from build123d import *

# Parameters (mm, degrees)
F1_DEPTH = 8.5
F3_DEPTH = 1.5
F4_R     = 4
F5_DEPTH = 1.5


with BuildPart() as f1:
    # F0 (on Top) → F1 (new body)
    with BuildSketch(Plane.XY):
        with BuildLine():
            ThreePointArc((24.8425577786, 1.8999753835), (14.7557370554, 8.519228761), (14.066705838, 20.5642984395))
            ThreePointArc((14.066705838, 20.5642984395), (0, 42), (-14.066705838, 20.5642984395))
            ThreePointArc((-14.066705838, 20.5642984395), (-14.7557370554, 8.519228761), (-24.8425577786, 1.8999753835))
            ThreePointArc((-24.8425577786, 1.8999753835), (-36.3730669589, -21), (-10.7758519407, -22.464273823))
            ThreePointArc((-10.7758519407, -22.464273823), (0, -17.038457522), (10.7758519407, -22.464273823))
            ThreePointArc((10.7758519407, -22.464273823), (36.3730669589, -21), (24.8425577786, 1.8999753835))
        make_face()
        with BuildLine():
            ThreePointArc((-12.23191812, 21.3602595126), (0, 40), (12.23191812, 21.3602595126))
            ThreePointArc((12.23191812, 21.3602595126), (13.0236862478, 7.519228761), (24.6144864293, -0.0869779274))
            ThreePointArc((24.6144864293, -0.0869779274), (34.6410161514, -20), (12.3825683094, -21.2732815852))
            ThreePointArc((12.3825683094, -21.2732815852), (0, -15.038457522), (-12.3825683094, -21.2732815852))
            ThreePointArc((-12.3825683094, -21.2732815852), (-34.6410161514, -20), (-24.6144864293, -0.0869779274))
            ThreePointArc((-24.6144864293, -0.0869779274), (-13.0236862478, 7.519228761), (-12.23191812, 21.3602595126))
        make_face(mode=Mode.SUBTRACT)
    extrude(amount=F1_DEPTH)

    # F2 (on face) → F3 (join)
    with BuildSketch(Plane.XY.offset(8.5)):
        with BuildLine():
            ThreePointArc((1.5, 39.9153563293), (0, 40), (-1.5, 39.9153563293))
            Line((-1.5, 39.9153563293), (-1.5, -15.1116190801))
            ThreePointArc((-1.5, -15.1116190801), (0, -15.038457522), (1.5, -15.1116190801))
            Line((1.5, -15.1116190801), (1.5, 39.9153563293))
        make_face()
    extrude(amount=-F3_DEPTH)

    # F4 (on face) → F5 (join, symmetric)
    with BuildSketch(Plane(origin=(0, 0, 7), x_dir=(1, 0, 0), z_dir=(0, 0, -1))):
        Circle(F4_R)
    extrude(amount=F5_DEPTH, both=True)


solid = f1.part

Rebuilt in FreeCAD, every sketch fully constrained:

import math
import FreeCAD as App
import Part
import Sketcher
from FreeCAD import Vector

doc = App.newDocument("Part")
body = doc.addObject("PartDesign::Body", "Body")

sketch1 = body.newObject("Sketcher::SketchObject", "Sketch")
sketch1.AttachmentSupport = (doc.getObject("XY_Plane"), [""])
sketch1.MapMode = "FlatFace"
sketch1.addGeometry([
    Part.ArcOfCircle(Part.Circle(Vector(26.372176, 15.225983, 0), Vector(0, 0, 1), 13.413509), math.radians(156.548007), math.radians(263.451993)),
    Part.ArcOfCircle(Part.Circle(Vector(0, 26.666667, 0), Vector(0, 0, 1), 15.333333), math.radians(-23.451993), math.radians(203.451993)),
    Part.ArcOfCircle(Part.Circle(Vector(-26.372176, 15.225983, 0), Vector(0, 0, 1), 13.413509), math.radians(-83.451993), math.radians(23.451993)),
    Part.ArcOfCircle(Part.Circle(Vector(-23.094011, -13.333333, 0), Vector(0, 0, 1), 15.333333), math.radians(96.548007), math.radians(323.451993)),
    Part.ArcOfCircle(Part.Circle(Vector(0, -30.451966, 0), Vector(0, 0, 1), 13.413509), math.radians(36.548007), math.radians(143.451993)),
    Part.ArcOfCircle(Part.Circle(Vector(23.094011, -13.333333, 0), Vector(0, 0, 1), 15.333333), math.radians(-143.451993), math.radians(83.451993)),
    Part.ArcOfCircle(Part.Circle(Vector(-26.372176, 15.225983, 0), Vector(0, 0, 1), 15.413509), math.radians(-83.451993), math.radians(23.451993)),
    Part.ArcOfCircle(Part.Circle(Vector(0, 26.666667, 0), Vector(0, 0, 1), 13.333333), math.radians(-23.451993), math.radians(203.451993)),
    Part.ArcOfCircle(Part.Circle(Vector(26.372176, 15.225983, 0), Vector(0, 0, 1), 15.413509), math.radians(156.548007), math.radians(263.451993)),
    Part.ArcOfCircle(Part.Circle(Vector(23.094011, -13.333333, 0), Vector(0, 0, 1), 13.333333), math.radians(-143.451993), math.radians(83.451993)),
    Part.ArcOfCircle(Part.Circle(Vector(0, -30.451966, 0), Vector(0, 0, 1), 15.413509), math.radians(36.548007), math.radians(143.451993)),
    Part.ArcOfCircle(Part.Circle(Vector(-23.094011, -13.333333, 0), Vector(0, 0, 1), 13.333333), math.radians(96.548007), math.radians(323.451993)),
], False)
sketch1.addConstraint([
    Sketcher.Constraint("Tangent", 0, 1, 1, 1),
    Sketcher.Constraint("Tangent", 1, 2, 2, 2),
    Sketcher.Constraint("Tangent", 2, 1, 3, 1),
    Sketcher.Constraint("Tangent", 3, 2, 4, 2),
    Sketcher.Constraint("Tangent", 4, 1, 5, 1),
    Sketcher.Constraint("Tangent", 5, 2, 0, 2),
    Sketcher.Constraint("Tangent", 6, 2, 7, 2),
    Sketcher.Constraint("Tangent", 7, 1, 8, 1),
    Sketcher.Constraint("Tangent", 8, 2, 9, 2),
    Sketcher.Constraint("Tangent", 9, 1, 10, 1),
    Sketcher.Constraint("Tangent", 10, 2, 11, 2),
    Sketcher.Constraint("Tangent", 11, 1, 6, 1),
    Sketcher.Constraint("Coincident", 6, 3, 2, 3),
    Sketcher.Constraint("Coincident", 7, 3, 1, 3),
    Sketcher.Constraint("Coincident", 8, 3, 0, 3),
    Sketcher.Constraint("Coincident", 9, 3, 5, 3),
    Sketcher.Constraint("Coincident", 10, 3, 4, 3),
    Sketcher.Constraint("Equal", 0, 2),
    Sketcher.Constraint("Equal", 1, 3),
    Sketcher.Constraint("Equal", 2, 4),
    Sketcher.Constraint("Equal", 3, 5),
    Sketcher.Constraint("Equal", 9, 11),
    Sketcher.Constraint("Symmetric", 0, 3, 2, 3, -2),
    Sketcher.Constraint("PointOnObject", 4, 3, -2),
    Sketcher.Constraint("DistanceY", 3, 3, 1, 3, 40.0),
    Sketcher.Constraint("Radius", 0, 13.413509),
    Sketcher.Constraint("Radius", 6, 15.413509),
    Sketcher.Constraint("Radius", 1, 15.333333),
    Sketcher.Constraint("DistanceY", -1, 1, 0, 1, 20.564298),
    Sketcher.Constraint("DistanceX", 3, 3, -1, 1, 23.094011),
])
pad1 = body.newObject("PartDesign::Pad", "Pad")
pad1.Profile = sketch1
pad1.Length = 8.5

sketch2 = body.newObject("Sketcher::SketchObject", "Sketch001")
sketch2.AttachmentSupport = (doc.getObject("XY_Plane"), [""])
sketch2.MapMode = "FlatFace"
sketch2.AttachmentOffset = App.Placement(Vector(0, 0, 8.5), App.Rotation())
sketch2.addGeometry([
    Part.ArcOfCircle(Part.Circle(Vector(0, 26.666667, 0), Vector(0, 0, 1), 13.333333), math.radians(83.54055), math.radians(96.45945)),
    Part.LineSegment(Vector(-1.5, 39.915356, 0), Vector(-1.5, -15.111619, 0)),
    Part.ArcOfCircle(Part.Circle(Vector(0, -30.451966, 0), Vector(0, 0, 1), 15.413509), math.radians(84.415294), math.radians(95.584706)),
    Part.LineSegment(Vector(1.5, -15.111619, 0), Vector(1.5, 39.915356, 0)),
], False)
sketch2.addConstraint([
    Sketcher.Constraint("Coincident", 0, 2, 1, 1),
    Sketcher.Constraint("Coincident", 1, 2, 2, 2),
    Sketcher.Constraint("Coincident", 2, 1, 3, 1),
    Sketcher.Constraint("Coincident", 3, 2, 0, 1),
    Sketcher.Constraint("Vertical", 1),
    Sketcher.Constraint("Vertical", 3),
    Sketcher.Constraint("Symmetric", 1, 2, 2, 1, -2),
    Sketcher.Constraint("PointOnObject", 0, 3, -2),
    Sketcher.Constraint("DistanceX", 1, 2, 2, 1, 3.0),
    Sketcher.Constraint("Radius", 2, 15.413509),
    Sketcher.Constraint("Radius", 0, 13.333333),
    Sketcher.Constraint("DistanceY", 1, 2, 1, 1, 55.026975),
    Sketcher.Constraint("DistanceY", 1, 2, -1, 1, 15.111619),
])
pad2 = body.newObject("PartDesign::Pad", "Pad001")
pad2.Profile = sketch2
pad2.Length = 1.5
pad2.Reversed = True

sketch3 = body.newObject("Sketcher::SketchObject", "Sketch002")
sketch3.AttachmentSupport = (doc.getObject("XY_Plane"), [""])
sketch3.MapMode = "FlatFace"
sketch3.AttachmentOffset = App.Placement(Vector(0, 0, 7), App.Rotation())
sketch3.addGeometry(Part.Circle(Vector(0, 0, 0), Vector(0, 0, 1), 4), False)
sketch3.addConstraint([
    Sketcher.Constraint("Coincident", 0, 3, -1, 1),
    Sketcher.Constraint("Diameter", 0, 8.0),
])
pad3 = body.newObject("PartDesign::Pad", "Pad002")
pad3.Profile = sketch3
pad3.Length = 3
pad3.Midplane = True

doc.recompute()
